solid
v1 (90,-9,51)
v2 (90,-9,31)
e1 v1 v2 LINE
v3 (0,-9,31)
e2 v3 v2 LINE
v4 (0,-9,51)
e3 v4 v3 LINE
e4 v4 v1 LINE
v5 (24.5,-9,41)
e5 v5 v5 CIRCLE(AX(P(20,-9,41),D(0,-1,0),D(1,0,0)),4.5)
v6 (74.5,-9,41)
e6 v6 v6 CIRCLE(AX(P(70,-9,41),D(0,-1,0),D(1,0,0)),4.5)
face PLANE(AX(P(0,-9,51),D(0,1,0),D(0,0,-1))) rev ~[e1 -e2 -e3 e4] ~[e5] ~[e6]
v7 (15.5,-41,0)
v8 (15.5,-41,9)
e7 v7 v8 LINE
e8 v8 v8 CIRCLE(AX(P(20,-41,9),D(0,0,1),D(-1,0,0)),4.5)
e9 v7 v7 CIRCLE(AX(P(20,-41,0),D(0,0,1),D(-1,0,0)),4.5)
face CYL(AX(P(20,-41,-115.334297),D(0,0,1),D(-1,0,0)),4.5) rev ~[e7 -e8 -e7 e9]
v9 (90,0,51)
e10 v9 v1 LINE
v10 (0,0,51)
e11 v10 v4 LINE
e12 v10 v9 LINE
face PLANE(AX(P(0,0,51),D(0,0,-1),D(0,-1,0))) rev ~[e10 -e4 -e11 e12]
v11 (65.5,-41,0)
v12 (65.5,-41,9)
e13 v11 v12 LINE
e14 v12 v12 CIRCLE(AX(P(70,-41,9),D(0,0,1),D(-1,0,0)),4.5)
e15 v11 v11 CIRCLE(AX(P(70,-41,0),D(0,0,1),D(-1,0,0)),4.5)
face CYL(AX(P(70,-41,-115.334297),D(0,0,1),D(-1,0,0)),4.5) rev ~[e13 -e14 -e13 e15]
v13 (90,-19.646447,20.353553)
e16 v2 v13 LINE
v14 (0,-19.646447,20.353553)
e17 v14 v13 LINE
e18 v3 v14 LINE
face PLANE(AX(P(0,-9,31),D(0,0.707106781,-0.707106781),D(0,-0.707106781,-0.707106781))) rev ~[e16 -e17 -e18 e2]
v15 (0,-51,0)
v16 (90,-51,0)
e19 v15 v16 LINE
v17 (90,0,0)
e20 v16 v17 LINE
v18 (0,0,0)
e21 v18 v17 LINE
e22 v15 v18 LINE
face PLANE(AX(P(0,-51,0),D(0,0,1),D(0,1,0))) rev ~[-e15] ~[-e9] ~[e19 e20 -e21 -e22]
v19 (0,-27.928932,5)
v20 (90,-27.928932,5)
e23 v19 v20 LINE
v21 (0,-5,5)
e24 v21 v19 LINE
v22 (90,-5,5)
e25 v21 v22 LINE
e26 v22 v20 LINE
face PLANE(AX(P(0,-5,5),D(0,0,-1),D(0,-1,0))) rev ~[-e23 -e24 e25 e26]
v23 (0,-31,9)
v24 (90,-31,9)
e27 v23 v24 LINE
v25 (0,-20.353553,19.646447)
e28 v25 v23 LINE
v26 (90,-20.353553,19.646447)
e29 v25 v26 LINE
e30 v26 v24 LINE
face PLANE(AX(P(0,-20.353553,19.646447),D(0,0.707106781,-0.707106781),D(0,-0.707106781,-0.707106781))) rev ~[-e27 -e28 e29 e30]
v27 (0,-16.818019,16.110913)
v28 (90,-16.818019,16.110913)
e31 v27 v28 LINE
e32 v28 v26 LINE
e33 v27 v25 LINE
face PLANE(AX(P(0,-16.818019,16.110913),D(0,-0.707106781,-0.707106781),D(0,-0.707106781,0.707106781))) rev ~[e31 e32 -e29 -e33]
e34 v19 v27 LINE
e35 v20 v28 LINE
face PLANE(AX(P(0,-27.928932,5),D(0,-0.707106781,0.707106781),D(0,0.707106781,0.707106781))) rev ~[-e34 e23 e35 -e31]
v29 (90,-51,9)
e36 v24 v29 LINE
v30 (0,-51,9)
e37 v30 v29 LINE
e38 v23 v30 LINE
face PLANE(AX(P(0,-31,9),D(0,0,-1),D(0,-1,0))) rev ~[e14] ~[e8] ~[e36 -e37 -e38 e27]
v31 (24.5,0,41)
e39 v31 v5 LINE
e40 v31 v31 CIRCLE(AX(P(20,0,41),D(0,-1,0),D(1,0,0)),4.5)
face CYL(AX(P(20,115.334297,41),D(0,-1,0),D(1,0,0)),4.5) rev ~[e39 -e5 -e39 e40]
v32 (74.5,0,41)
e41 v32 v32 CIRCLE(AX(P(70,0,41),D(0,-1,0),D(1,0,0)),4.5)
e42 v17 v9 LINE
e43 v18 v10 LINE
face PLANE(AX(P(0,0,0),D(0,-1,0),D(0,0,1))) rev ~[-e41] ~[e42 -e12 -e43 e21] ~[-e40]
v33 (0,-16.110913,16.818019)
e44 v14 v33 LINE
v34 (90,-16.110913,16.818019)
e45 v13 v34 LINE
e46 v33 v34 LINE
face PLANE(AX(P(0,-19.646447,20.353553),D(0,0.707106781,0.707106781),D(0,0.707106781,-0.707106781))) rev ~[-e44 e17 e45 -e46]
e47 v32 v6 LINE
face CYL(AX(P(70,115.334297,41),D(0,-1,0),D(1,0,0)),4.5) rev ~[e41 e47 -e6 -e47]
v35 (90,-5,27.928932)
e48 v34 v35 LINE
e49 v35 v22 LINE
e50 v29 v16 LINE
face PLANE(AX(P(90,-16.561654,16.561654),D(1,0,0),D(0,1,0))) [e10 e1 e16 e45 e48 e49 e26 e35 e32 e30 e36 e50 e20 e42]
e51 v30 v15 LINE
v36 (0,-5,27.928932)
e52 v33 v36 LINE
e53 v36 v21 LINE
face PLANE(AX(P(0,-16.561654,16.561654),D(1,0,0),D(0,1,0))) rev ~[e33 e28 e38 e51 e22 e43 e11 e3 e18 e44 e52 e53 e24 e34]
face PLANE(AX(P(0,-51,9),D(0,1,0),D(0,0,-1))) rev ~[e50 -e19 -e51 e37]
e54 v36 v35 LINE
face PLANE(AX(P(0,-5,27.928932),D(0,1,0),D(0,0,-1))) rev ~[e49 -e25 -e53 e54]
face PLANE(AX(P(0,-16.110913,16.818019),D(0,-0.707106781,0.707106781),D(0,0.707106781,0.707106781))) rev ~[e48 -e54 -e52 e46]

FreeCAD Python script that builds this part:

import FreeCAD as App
import Part
import Sketcher
Q = App.Units.Quantity

doc = App.newDocument("Part")
body = doc.addObject("PartDesign::Body", "Body")

sketch1 = doc.addObject("Sketcher::SketchObject", "Sketch")
body.addObject(sketch1)
sketch1.AttachmentSupport = (doc.YZ_Plane, [""])
sketch1.MapMode = "FlatFace"
sketch1.addGeometry(Part.LineSegment(App.Vector(-51, 0, 0), App.Vector(0, 0, 0)), False)
sketch1.addGeometry(Part.LineSegment(App.Vector(0, 0, 0), App.Vector(0, 51, 0)), False)
sketch1.addGeometry(Part.LineSegment(App.Vector(0, 51, 0), App.Vector(-9, 51, 0)), False)
sketch1.addGeometry(Part.LineSegment(App.Vector(-9, 51, 0), App.Vector(-9, 31, 0)), False)
sketch1.addGeometry(Part.LineSegment(App.Vector(-9, 31, 0), App.Vector(-20, 20, 0)), False)
sketch1.addGeometry(Part.LineSegment(App.Vector(-20, 20, 0), App.Vector(-16, 17, 0)), False)
sketch1.addGeometry(Part.LineSegment(App.Vector(-16, 17, 0), App.Vector(-5, 28, 0)), False)
sketch1.addGeometry(Part.LineSegment(App.Vector(-5, 28, 0), App.Vector(-5, 5, 0)), False)
sketch1.addGeometry(Part.LineSegment(App.Vector(-5, 5, 0), App.Vector(-28, 5, 0)), False)
sketch1.addGeometry(Part.LineSegment(App.Vector(-28, 5, 0), App.Vector(-17, 16, 0)), False)
sketch1.addGeometry(Part.LineSegment(App.Vector(-17, 16, 0), App.Vector(-20, 20, 0)), False)
sketch1.addGeometry(Part.LineSegment(App.Vector(-20, 20, 0), App.Vector(-31, 9, 0)), False)
sketch1.addGeometry(Part.LineSegment(App.Vector(-31, 9, 0), App.Vector(-51, 9, 0)), False)
sketch1.addGeometry(Part.LineSegment(App.Vector(-51, 9, 0), App.Vector(-51, 0, 0)), False)
sketch1.addConstraint(Sketcher.Constraint("Coincident", 0, 2, 1, 1))
sketch1.addConstraint(Sketcher.Constraint("Coincident", 1, 2, 2, 1))
sketch1.addConstraint(Sketcher.Constraint("Coincident", 2, 2, 3, 1))
sketch1.addConstraint(Sketcher.Constraint("Coincident", 3, 2, 4, 1))
sketch1.addConstraint(Sketcher.Constraint("Coincident", 4, 2, 5, 1))
sketch1.addConstraint(Sketcher.Constraint("Coincident", 5, 2, 6, 1))
sketch1.addConstraint(Sketcher.Constraint("Coincident", 6, 2, 7, 1))
sketch1.addConstraint(Sketcher.Constraint("Coincident", 7, 2, 8, 1))
sketch1.addConstraint(Sketcher.Constraint("Coincident", 8, 2, 9, 1))
sketch1.addConstraint(Sketcher.Constraint("Coincident", 9, 2, 10, 1))
sketch1.addConstraint(Sketcher.Constraint("Coincident", 10, 2, 11, 1))
sketch1.addConstraint(Sketcher.Constraint("Coincident", 11, 2, 12, 1))
sketch1.addConstraint(Sketcher.Constraint("Coincident", 12, 2, 13, 1))
sketch1.addConstraint(Sketcher.Constraint("Coincident", 13, 2, 0, 1))
sketch1.addConstraint(Sketcher.Constraint("Horizontal", 0))
sketch1.addConstraint(Sketcher.Constraint("Vertical", 1))
sketch1.addConstraint(Sketcher.Constraint("Horizontal", 2))
sketch1.addConstraint(Sketcher.Constraint("Vertical", 3))
sketch1.addConstraint(Sketcher.Constraint("Vertical", 7))
sketch1.addConstraint(Sketcher.Constraint("Horizontal", 8))
sketch1.addConstraint(Sketcher.Constraint("Horizontal", 12))
sketch1.addConstraint(Sketcher.Constraint("Vertical", 13))
sketch1.addConstraint(Sketcher.Constraint("Coincident", 0, 2, -1, 1))
sketch1.addConstraint(Sketcher.Constraint("Perpendicular", 4, 5))
sketch1.addConstraint(Sketcher.Constraint("Perpendicular", 5, 6))
sketch1.addConstraint(Sketcher.Constraint("Parallel", 6, 9))
sketch1.addConstraint(Sketcher.Constraint("Perpendicular", 9, 10))
sketch1.addConstraint(Sketcher.Constraint("Perpendicular", 10, 11))
sketch1.addConstraint(Sketcher.Constraint("Equal", 0, 1))
sketch1.addConstraint(Sketcher.Constraint("Equal", 12, 3))
sketch1.addConstraint(Sketcher.Constraint("Equal", 8, 7))
sketch1.addConstraint(Sketcher.Constraint("Equal", 2, 13))
sketch1.addConstraint(Sketcher.Constraint("Equal", 6, 9))
sketch1.addConstraint(Sketcher.Constraint("Equal", 5, 10))
sketch1.addConstraint(Sketcher.Constraint("Equal", 4, 11))
sketch1.addConstraint(Sketcher.Constraint("DistanceX", 0, 1, 0, 2, Q("51 mm")))
sketch1.addConstraint(Sketcher.Constraint("DistanceX", 2, 2, 2, 1, Q("9 mm")))
sketch1.addConstraint(Sketcher.Constraint("DistanceX", 12, 2, 12, 1, Q("20 mm")))
sketch1.addConstraint(Sketcher.Constraint("Distance", 5, Q("5 mm")))
sketch1.addConstraint(Sketcher.Constraint("DistanceX", 6, 2, -1, 1, Q("5 mm")))
sketch1.addConstraint(Sketcher.Constraint("Distance", 4, Q("15.056349 mm")))
pad1 = doc.addObject("PartDesign::Pad", "Pad")
body.addObject(pad1)
pad1.Profile = sketch1
pad1.Length = 90

sketch2 = doc.addObject("Sketcher::SketchObject", "Sketch001")
body.addObject(sketch2)
sketch2.AttachmentSupport = (doc.XY_Plane, [""])
sketch2.MapMode = "FlatFace"
sketch2.addGeometry(Part.Circle(App.Vector(70, -41, 0), App.Vector(0, 0, 1), 4.5), False)
sketch2.addGeometry(Part.Circle(App.Vector(20, -41, 0), App.Vector(0, 0, 1), 4.5), False)
sketch2.addConstraint(Sketcher.Constraint("Equal", 0, 1))
sketch2.addConstraint(Sketcher.Constraint("Horizontal", 0, 3, 1, 3))
sketch2.addConstraint(Sketcher.Constraint("Diameter", 0, Q("9 mm")))
sketch2.addConstraint(Sketcher.Constraint("DistanceX", -1, 1, 0, 3, Q("70 mm")))
sketch2.addConstraint(Sketcher.Constraint("DistanceY", 0, 3, -1, 1, Q("41 mm")))
sketch2.addConstraint(Sketcher.Constraint("DistanceX", -1, 1, 1, 3, Q("20 mm")))
doc.recompute()
hole = doc.addObject("PartDesign::Hole", "Hole")
body.addObject(hole)
hole.Profile = sketch2
hole.ThreadType = "None"
hole.Diameter = 9
hole.DepthType = "ThroughAll"
hole.Reversed = True

sketch3 = doc.addObject("Sketcher::SketchObject", "Sketch002")
body.addObject(sketch3)
sketch3.AttachmentSupport = (doc.XZ_Plane, [""])
sketch3.MapMode = "FlatFace"
sketch3.addGeometry(Part.Circle(App.Vector(20, 41, 0), App.Vector(0, 0, 1), 4.5), False)
sketch3.addGeometry(Part.Circle(App.Vector(70, 41, 0), App.Vector(0, 0, 1), 4.5), False)
sketch3.addConstraint(Sketcher.Constraint("Equal", 0, 1))
sketch3.addConstraint(Sketcher.Constraint("Horizontal", 0, 3, 1, 3))
sketch3.addConstraint(Sketcher.Constraint("Diameter", 0, Q("9 mm")))
sketch3.addConstraint(Sketcher.Constraint("DistanceX", -1, 1, 0, 3, Q("20 mm")))
sketch3.addConstraint(Sketcher.Constraint("DistanceY", -1, 1, 0, 3, Q("41 mm")))
sketch3.addConstraint(Sketcher.Constraint("DistanceX", -1, 1, 1, 3, Q("70 mm")))
doc.recompute()
hole2 = doc.addObject("PartDesign::Hole", "Hole001")
body.addObject(hole2)
hole2.Profile = sketch3
hole2.ThreadType = "None"
hole2.Diameter = 9
hole2.DepthType = "ThroughAll"
hole2.Reversed = True

doc.recompute()
